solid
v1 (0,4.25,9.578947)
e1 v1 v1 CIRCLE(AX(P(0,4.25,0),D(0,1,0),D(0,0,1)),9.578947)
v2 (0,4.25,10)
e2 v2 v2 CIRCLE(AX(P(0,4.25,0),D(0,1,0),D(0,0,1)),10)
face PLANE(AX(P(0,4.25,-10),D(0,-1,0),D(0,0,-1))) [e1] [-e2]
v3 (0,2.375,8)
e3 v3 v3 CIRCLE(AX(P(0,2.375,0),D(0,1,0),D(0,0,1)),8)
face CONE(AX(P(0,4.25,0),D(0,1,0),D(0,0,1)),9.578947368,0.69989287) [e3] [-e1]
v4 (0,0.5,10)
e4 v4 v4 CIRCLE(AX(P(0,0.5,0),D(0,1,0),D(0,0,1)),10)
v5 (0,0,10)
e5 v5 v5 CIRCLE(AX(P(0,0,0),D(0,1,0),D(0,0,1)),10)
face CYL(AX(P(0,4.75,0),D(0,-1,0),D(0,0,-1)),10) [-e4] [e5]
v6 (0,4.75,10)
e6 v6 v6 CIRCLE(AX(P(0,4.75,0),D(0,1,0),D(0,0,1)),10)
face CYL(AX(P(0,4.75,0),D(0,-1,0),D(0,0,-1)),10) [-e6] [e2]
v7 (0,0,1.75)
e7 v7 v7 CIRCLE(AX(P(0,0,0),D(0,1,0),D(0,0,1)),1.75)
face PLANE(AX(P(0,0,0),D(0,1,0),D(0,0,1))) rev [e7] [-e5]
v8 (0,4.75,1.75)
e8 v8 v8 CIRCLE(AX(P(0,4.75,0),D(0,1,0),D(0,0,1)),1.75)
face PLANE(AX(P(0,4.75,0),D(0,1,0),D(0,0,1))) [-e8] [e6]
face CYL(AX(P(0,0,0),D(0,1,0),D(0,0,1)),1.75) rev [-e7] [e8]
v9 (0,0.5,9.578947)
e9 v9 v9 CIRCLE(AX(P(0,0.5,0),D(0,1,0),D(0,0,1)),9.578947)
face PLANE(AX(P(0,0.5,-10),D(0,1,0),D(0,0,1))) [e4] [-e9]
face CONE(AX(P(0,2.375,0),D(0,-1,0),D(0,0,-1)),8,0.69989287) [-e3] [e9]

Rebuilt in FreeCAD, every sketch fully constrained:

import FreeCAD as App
import Part
import Sketcher
from FreeCAD import Vector

doc = App.newDocument("Part")
body = doc.addObject("PartDesign::Body", "Body")

sketch1 = body.newObject("Sketcher::SketchObject", "Sketch")
sketch1.AttachmentSupport = (doc.getObject("XZ_Plane"), [""])
sketch1.MapMode = "FlatFace"
sketch1.addGeometry(Part.Circle(Vector(0, 0, 0), Vector(0, 0, 1), 10), False)
sketch1.addConstraint([
    Sketcher.Constraint("Coincident", 0, 3, -1, 1),
    Sketcher.Constraint("Diameter", 0, 20.0),
])
pad1 = body.newObject("PartDesign::Pad", "Pad")
pad1.Profile = sketch1
pad1.Length = 4.75
pad1.Reversed = True

sketch2 = body.newObject("Sketcher::SketchObject", "Sketch001")
sketch2.AttachmentSupport = (doc.getObject("YZ_Plane"), [""])
sketch2.MapMode = "FlatFace"
sketch2.addGeometry([
    Part.LineSegment(Vector(4.25, -9.58, 0), Vector(2.38, -8, 0)),
    Part.LineSegment(Vector(2.38, -8, 0), Vector(0.5, -9.58, 0)),
    Part.LineSegment(Vector(0.5, -9.58, 0), Vector(0.5, -10, 0)),
    Part.LineSegment(Vector(0.5, -10, 0), Vector(4.25, -10, 0)),
    Part.LineSegment(Vector(4.25, -10, 0), Vector(4.25, -9.58, 0)),
], False)
sketch2.addConstraint([
    Sketcher.Constraint("Coincident", 0, 2, 1, 1),
    Sketcher.Constraint("Coincident", 1, 2, 2, 1),
    Sketcher.Constraint("Coincident", 2, 2, 3, 1),
    Sketcher.Constraint("Coincident", 3, 2, 4, 1),
    Sketcher.Constraint("Coincident", 4, 2, 0, 1),
    Sketcher.Constraint("Vertical", 2),
    Sketcher.Constraint("Horizontal", 3),
    Sketcher.Constraint("Vertical", 4),
    Sketcher.Constraint("Horizontal", 1, 2, 4, 2),
    Sketcher.Constraint("Equal", 0, 1),
    Sketcher.Constraint("DistanceY", 0, 2, -1, 1, 8.0),
    Sketcher.Constraint("DistanceY", 2, 2, -1, 1, 10.0),
    Sketcher.Constraint("DistanceX", 3, 1, 3, 2, 3.75),
    Sketcher.Constraint("DistanceX", -1, 1, 1, 2, 0.5),
    Sketcher.Constraint("DistanceY", 2, 2, 2, 1, 0.421053),
])
groove = body.newObject("PartDesign::Groove", "Groove")
groove.Profile = sketch2
groove.ReferenceAxis = (sketch2, ["H_Axis"])
groove.Angle = 360

sketch3 = body.newObject("Sketcher::SketchObject", "Sketch002")
sketch3.AttachmentSupport = (doc.getObject("XZ_Plane"), [""])
sketch3.MapMode = "FlatFace"
sketch3.AttachmentOffset = App.Placement(Vector(0, 0, -4.75), App.Rotation())
sketch3.addGeometry(Part.Circle(Vector(0, 0, 0), Vector(0, 0, 1), 1.8), False)
sketch3.addConstraint([
    Sketcher.Constraint("Coincident", 0, 3, -1, 1),
    Sketcher.Constraint("Diameter", 0, 3.5),
])
pocket1 = body.newObject("PartDesign::Pocket", "Pocket")
pocket1.Profile = sketch3
pocket1.Length = 4.75
pocket1.Reversed = True

doc.recompute()
